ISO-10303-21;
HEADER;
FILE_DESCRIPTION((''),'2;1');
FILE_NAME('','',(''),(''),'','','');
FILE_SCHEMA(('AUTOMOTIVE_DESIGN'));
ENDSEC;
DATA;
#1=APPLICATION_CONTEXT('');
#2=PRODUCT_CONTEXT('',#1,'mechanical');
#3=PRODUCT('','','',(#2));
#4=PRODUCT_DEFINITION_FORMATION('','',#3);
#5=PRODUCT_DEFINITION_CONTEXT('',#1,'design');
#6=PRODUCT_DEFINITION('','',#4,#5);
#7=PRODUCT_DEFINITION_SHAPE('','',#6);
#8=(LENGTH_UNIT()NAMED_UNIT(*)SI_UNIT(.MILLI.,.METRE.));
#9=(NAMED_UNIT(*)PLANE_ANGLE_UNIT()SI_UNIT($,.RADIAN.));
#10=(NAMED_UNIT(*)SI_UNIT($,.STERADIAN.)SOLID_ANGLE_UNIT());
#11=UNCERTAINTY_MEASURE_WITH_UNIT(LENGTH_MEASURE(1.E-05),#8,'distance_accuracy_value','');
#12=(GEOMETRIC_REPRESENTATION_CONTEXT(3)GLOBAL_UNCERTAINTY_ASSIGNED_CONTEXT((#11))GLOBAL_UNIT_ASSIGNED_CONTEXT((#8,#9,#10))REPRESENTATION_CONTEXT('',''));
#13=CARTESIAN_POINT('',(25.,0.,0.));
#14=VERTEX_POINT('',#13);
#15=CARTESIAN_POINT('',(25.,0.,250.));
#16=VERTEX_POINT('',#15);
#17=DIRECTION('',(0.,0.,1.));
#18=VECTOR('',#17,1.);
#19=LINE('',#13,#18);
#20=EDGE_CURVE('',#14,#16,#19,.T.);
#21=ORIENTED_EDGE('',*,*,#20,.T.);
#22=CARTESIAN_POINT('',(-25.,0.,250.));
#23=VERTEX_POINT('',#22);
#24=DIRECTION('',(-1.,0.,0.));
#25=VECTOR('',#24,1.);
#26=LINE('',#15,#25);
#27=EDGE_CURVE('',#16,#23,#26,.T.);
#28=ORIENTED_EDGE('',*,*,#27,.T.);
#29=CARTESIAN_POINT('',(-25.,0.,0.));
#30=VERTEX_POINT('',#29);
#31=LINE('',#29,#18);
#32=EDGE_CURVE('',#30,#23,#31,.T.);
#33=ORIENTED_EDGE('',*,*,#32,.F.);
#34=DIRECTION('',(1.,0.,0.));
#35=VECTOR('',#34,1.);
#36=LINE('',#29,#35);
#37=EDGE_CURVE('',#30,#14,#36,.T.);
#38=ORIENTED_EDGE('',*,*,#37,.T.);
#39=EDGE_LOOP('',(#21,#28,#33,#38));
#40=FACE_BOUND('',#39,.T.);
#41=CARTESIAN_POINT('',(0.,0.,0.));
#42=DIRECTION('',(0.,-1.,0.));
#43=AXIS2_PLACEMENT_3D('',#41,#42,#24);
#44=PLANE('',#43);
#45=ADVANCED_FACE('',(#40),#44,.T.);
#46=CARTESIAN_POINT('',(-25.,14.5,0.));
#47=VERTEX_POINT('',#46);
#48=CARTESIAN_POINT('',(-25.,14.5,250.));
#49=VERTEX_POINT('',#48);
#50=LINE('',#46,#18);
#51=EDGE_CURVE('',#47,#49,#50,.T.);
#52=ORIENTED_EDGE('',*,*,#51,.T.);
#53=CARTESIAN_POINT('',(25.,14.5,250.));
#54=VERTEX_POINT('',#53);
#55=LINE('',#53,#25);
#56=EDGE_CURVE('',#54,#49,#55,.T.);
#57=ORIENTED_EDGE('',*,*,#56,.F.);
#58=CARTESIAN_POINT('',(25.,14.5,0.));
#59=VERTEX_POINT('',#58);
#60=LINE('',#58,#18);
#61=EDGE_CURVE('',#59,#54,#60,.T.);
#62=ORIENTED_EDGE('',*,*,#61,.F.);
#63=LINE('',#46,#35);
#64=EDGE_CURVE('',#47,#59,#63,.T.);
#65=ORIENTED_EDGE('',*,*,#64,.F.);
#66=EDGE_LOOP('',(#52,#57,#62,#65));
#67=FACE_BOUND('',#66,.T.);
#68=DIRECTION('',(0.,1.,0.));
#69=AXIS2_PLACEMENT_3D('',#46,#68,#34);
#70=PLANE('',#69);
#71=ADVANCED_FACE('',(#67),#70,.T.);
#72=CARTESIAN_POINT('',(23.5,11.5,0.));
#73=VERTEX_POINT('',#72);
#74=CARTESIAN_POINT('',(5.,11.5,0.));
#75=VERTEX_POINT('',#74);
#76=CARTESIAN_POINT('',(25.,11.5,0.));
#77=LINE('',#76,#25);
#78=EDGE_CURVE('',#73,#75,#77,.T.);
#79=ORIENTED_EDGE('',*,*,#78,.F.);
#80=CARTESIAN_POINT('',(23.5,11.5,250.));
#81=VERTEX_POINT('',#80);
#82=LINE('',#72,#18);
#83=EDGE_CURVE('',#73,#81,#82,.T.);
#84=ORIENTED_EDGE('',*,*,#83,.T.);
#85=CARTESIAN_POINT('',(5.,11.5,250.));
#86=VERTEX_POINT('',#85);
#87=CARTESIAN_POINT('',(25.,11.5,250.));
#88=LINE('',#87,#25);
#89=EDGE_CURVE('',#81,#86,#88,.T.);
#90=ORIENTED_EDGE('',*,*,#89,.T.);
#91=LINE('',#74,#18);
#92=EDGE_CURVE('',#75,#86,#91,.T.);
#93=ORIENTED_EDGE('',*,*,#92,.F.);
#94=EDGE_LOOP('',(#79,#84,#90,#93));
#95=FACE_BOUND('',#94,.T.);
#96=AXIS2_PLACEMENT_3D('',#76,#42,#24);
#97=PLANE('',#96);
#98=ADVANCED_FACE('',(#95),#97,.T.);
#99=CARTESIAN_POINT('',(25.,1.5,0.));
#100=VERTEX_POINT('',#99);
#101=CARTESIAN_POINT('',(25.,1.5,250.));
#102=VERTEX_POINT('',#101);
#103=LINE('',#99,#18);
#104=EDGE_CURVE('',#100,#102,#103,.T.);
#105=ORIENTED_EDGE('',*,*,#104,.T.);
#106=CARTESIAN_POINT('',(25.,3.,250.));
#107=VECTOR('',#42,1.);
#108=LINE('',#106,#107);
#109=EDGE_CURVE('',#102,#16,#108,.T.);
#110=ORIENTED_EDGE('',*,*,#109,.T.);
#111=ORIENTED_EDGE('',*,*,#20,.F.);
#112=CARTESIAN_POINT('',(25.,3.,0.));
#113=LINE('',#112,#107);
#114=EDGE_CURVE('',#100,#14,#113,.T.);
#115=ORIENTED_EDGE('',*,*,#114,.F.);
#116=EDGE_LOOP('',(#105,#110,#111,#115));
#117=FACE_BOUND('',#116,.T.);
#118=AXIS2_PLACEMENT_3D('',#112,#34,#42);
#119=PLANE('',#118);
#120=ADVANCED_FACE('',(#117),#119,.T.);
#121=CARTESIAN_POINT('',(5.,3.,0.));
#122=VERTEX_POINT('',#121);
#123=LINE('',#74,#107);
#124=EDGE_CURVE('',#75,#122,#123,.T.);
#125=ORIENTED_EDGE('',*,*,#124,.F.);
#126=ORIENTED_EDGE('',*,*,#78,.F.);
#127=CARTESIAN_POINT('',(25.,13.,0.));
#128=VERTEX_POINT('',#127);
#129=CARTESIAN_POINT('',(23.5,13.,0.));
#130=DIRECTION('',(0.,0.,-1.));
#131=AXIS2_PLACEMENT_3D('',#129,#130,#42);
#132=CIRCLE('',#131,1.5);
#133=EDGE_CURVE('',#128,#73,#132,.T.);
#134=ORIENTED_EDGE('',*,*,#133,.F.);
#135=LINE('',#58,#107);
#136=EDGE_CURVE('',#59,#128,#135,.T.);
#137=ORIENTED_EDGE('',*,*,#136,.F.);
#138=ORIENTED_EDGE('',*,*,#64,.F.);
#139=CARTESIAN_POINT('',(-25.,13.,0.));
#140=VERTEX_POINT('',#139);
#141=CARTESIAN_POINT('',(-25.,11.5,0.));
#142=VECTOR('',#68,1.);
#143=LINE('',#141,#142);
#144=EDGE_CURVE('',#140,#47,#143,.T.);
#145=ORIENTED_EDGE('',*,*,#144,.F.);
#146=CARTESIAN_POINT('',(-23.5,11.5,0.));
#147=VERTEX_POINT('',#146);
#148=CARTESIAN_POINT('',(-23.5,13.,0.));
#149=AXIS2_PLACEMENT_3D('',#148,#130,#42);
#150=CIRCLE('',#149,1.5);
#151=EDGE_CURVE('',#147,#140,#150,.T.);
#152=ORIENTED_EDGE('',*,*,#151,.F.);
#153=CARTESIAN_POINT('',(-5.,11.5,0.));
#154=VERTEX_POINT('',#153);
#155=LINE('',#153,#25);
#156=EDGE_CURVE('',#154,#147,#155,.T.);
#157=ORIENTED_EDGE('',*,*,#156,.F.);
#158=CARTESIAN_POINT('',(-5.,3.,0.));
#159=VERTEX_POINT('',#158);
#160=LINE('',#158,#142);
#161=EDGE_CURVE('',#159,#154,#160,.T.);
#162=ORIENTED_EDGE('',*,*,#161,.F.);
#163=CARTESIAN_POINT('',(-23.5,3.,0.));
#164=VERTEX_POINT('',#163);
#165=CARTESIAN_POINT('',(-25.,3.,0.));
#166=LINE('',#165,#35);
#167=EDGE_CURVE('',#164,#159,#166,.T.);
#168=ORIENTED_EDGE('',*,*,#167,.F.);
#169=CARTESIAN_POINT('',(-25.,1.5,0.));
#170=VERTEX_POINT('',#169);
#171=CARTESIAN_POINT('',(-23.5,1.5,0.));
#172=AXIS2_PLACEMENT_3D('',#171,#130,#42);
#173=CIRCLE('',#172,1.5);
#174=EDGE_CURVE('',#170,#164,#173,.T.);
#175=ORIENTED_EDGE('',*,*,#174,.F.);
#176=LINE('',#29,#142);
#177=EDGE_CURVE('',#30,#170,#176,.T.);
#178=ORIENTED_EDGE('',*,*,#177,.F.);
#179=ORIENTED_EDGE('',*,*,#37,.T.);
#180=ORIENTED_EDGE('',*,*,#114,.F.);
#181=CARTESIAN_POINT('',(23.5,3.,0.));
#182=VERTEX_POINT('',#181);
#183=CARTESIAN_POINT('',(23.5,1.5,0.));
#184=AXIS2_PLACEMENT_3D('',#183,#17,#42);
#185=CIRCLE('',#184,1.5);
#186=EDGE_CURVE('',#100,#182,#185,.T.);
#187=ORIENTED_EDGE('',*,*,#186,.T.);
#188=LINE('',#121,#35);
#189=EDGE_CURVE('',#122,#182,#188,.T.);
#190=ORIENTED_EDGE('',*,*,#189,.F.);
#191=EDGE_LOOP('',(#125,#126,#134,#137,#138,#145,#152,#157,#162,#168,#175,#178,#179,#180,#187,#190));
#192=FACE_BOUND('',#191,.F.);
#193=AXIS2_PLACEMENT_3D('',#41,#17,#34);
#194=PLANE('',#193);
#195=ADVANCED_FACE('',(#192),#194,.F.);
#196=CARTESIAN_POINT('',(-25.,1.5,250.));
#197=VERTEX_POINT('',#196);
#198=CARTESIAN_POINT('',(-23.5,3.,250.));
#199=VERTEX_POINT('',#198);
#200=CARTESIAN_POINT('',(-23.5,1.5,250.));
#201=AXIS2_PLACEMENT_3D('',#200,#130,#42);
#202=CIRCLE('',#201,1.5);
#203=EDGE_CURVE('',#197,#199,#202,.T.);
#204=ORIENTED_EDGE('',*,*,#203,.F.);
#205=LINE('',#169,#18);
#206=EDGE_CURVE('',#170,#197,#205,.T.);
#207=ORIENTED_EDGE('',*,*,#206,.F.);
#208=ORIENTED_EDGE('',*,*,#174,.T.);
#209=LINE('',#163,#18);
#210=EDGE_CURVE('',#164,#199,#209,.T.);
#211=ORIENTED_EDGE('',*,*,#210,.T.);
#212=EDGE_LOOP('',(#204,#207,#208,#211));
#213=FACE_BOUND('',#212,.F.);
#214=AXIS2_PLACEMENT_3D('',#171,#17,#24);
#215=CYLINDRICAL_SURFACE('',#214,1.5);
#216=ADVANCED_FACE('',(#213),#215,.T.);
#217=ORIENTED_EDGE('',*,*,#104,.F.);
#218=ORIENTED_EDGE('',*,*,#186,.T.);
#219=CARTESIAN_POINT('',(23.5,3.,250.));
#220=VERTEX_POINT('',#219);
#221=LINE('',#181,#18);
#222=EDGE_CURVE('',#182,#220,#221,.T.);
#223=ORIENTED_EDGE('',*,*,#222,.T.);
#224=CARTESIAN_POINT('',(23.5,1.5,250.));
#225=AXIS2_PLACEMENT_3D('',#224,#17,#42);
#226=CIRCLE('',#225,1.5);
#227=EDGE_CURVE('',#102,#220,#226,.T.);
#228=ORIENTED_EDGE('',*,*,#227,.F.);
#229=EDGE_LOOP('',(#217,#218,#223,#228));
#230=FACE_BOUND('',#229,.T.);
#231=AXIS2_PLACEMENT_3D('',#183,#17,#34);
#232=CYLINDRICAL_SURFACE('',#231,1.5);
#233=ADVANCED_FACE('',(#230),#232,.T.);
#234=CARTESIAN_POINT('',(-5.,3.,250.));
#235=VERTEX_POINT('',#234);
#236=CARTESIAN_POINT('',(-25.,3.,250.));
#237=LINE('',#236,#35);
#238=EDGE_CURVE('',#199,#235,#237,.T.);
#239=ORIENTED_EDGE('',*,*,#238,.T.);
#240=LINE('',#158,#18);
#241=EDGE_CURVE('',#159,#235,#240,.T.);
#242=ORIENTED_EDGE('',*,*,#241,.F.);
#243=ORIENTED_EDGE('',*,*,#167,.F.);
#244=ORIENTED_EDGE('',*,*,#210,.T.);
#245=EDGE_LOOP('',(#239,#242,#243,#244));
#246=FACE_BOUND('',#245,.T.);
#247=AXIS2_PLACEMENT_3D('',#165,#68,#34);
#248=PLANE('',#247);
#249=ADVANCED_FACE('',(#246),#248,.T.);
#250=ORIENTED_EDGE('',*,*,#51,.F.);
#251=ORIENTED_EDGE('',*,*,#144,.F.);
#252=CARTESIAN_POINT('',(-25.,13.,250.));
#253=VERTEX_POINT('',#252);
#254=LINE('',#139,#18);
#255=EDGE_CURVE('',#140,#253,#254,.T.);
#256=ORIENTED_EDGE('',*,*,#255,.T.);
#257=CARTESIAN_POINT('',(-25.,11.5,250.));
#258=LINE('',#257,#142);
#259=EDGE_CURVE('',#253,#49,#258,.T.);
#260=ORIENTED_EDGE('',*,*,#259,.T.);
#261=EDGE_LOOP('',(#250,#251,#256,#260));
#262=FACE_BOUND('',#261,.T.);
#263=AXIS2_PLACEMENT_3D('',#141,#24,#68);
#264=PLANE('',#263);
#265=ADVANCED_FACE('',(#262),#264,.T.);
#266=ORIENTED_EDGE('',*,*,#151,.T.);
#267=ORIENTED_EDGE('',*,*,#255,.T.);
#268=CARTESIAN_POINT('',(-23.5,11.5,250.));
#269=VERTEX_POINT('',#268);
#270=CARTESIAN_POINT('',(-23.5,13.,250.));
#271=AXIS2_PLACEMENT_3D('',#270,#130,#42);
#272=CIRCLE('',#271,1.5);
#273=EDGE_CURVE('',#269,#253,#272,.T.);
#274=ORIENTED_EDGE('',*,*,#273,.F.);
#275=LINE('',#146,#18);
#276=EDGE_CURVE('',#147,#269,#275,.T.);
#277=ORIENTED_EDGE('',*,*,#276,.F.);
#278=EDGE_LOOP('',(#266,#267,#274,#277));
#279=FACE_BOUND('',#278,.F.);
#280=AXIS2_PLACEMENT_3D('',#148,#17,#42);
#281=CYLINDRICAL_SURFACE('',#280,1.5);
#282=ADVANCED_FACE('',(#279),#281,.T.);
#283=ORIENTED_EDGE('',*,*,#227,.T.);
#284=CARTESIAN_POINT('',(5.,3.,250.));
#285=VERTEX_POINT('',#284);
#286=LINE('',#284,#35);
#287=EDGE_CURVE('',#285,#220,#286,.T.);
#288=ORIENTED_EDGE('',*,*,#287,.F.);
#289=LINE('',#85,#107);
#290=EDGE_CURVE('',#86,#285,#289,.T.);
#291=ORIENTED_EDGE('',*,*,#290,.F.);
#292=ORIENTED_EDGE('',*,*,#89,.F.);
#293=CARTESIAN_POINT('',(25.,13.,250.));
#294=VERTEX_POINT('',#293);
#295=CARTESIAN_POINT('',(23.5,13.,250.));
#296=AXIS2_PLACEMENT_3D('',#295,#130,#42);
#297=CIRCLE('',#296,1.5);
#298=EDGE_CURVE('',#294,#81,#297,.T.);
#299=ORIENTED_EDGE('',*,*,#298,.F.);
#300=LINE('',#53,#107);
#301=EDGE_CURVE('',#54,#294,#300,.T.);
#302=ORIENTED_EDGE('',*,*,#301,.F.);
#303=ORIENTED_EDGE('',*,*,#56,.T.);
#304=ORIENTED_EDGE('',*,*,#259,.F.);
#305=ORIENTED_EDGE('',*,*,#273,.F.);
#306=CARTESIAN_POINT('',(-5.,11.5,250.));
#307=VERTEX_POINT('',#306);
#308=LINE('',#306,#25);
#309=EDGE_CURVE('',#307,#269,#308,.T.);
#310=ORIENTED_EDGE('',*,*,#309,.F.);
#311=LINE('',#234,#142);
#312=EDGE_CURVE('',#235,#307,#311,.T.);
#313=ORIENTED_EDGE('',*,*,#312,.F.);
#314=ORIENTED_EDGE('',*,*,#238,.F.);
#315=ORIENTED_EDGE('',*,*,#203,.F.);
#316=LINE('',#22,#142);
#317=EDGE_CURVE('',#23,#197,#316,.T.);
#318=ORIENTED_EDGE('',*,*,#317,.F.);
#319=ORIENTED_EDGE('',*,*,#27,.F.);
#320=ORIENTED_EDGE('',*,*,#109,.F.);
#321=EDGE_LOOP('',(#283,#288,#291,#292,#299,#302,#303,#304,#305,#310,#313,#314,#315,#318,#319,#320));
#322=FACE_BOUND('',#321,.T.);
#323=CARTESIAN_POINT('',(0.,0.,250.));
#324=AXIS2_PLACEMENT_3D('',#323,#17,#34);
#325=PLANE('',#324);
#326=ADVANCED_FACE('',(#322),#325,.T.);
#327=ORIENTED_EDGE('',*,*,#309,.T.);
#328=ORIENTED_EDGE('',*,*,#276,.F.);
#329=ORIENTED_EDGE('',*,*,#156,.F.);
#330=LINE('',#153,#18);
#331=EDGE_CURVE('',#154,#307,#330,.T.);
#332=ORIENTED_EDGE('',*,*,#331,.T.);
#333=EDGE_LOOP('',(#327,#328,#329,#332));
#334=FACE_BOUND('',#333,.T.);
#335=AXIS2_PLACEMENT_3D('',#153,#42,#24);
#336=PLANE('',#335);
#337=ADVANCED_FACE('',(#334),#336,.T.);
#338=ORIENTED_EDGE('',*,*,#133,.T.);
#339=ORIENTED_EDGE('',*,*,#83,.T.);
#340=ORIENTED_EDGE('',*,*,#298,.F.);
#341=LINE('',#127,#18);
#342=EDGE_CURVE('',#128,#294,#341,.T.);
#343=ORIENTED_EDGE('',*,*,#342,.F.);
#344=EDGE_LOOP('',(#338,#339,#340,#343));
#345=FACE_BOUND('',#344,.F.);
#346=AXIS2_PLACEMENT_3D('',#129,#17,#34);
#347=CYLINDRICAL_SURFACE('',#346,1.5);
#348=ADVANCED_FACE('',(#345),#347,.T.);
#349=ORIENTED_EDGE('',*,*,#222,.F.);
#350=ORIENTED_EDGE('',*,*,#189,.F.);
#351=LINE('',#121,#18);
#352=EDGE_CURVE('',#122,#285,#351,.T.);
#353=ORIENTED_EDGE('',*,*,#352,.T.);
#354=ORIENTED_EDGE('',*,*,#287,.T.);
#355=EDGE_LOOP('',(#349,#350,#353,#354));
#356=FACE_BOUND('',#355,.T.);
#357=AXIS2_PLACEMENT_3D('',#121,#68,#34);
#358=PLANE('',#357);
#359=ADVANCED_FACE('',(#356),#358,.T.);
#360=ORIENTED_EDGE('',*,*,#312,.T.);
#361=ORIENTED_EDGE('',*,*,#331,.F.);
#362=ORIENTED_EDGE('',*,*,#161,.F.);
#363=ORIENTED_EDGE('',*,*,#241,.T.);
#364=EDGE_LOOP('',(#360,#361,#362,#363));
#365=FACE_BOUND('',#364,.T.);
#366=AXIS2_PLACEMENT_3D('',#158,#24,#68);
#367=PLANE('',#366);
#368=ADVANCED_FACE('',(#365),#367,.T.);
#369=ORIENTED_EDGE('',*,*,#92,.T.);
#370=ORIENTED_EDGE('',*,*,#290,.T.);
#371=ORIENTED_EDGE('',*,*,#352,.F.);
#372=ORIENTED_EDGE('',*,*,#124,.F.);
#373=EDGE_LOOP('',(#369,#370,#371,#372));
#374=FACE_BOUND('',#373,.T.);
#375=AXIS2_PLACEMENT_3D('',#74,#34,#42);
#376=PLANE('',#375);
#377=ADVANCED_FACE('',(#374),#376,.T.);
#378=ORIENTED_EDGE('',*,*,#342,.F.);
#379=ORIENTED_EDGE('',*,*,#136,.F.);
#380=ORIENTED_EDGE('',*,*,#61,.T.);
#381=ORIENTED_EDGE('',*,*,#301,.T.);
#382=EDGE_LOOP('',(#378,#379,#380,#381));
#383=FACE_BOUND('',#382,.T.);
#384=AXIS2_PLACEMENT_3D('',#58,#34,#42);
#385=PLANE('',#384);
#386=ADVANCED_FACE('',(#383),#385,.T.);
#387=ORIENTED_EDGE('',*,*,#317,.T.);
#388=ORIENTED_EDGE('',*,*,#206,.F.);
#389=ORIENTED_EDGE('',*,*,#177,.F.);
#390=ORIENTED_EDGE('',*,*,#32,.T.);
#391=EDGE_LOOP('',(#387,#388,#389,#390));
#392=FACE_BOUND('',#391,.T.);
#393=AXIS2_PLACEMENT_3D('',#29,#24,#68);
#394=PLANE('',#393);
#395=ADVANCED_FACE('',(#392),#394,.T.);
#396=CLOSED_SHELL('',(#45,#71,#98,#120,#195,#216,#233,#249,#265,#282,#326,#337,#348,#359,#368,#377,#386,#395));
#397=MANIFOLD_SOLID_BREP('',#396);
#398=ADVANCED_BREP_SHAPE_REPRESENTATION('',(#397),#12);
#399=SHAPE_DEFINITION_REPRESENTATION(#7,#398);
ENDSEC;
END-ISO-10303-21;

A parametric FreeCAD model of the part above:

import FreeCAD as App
import Part
import Sketcher
from FreeCAD import Vector


def edges_at(feature, points):
    """Names of the edges that pass closest to the given points."""
    edges = feature.Shape.Edges
    near = lambda p: min(range(len(edges)), key=lambda i: edges[i].distToShape(Part.Vertex(*p))[0])
    return sorted({f"Edge{near(p) + 1}" for p in points})

doc = App.newDocument("Part")
body = doc.addObject("PartDesign::Body", "Body")

# Sketch on XY plane
sketch1 = doc.addObject("Sketcher::SketchObject", "Sketch")
body.addObject(sketch1)
sketch1.AttachmentSupport = (doc.XY_Plane, [""])
sketch1.MapMode = "FlatFace"
sketch1.addGeometry(Part.LineSegment(Vector(-25, 0, 0), Vector(25, 0, 0)), False)
sketch1.addGeometry(Part.LineSegment(Vector(25, 0, 0), Vector(25, 3, 0)), False)
sketch1.addGeometry(Part.LineSegment(Vector(25, 3, 0), Vector(5, 3, 0)), False)
sketch1.addGeometry(Part.LineSegment(Vector(5, 3, 0), Vector(5, 11.5, 0)), False)
sketch1.addGeometry(Part.LineSegment(Vector(5, 11.5, 0), Vector(25, 11.5, 0)), False)
sketch1.addGeometry(Part.LineSegment(Vector(25, 11.5, 0), Vector(25, 14.5, 0)), False)
sketch1.addGeometry(Part.LineSegment(Vector(25, 14.5, 0), Vector(-25, 14.5, 0)), False)
sketch1.addGeometry(Part.LineSegment(Vector(-25, 14.5, 0), Vector(-25, 11.5, 0)), False)
sketch1.addGeometry(Part.LineSegment(Vector(-25, 11.5, 0), Vector(-5, 11.5, 0)), False)
sketch1.addGeometry(Part.LineSegment(Vector(-5, 11.5, 0), Vector(-5, 3, 0)), False)
sketch1.addGeometry(Part.LineSegment(Vector(-5, 3, 0), Vector(-25, 3, 0)), False)
sketch1.addGeometry(Part.LineSegment(Vector(-25, 3, 0), Vector(-25, 0, 0)), False)
sketch1.addConstraint(Sketcher.Constraint("Coincident", 0, 2, 1, 1))
sketch1.addConstraint(Sketcher.Constraint("Coincident", 1, 2, 2, 1))
sketch1.addConstraint(Sketcher.Constraint("Coincident", 2, 2, 3, 1))
sketch1.addConstraint(Sketcher.Constraint("Coincident", 3, 2, 4, 1))
sketch1.addConstraint(Sketcher.Constraint("Coincident", 4, 2, 5, 1))
sketch1.addConstraint(Sketcher.Constraint("Coincident", 5, 2, 6, 1))
sketch1.addConstraint(Sketcher.Constraint("Coincident", 6, 2, 7, 1))
sketch1.addConstraint(Sketcher.Constraint("Coincident", 7, 2, 8, 1))
sketch1.addConstraint(Sketcher.Constraint("Coincident", 8, 2, 9, 1))
sketch1.addConstraint(Sketcher.Constraint("Coincident", 9, 2, 10, 1))
sketch1.addConstraint(Sketcher.Constraint("Coincident", 10, 2, 11, 1))
sketch1.addConstraint(Sketcher.Constraint("Coincident", 11, 2, 0, 1))
sketch1.addConstraint(Sketcher.Constraint("Horizontal", 0))
sketch1.addConstraint(Sketcher.Constraint("Vertical", 1))
sketch1.addConstraint(Sketcher.Constraint("Horizontal", 2))
sketch1.addConstraint(Sketcher.Constraint("Vertical", 3))
sketch1.addConstraint(Sketcher.Constraint("Horizontal", 4))
sketch1.addConstraint(Sketcher.Constraint("Vertical", 5))
sketch1.addConstraint(Sketcher.Constraint("Horizontal", 6))
sketch1.addConstraint(Sketcher.Constraint("Vertical", 7))
sketch1.addConstraint(Sketcher.Constraint("Horizontal", 8))
sketch1.addConstraint(Sketcher.Constraint("Vertical", 9))
sketch1.addConstraint(Sketcher.Constraint("Horizontal", 10))
sketch1.addConstraint(Sketcher.Constraint("Vertical", 11))
sketch1.addConstraint(Sketcher.Constraint("Symmetric", 0, 2, 11, 2, -1, 1))
sketch1.addConstraint(Sketcher.Constraint("Symmetric", 4, 2, 7, 2, -2))
sketch1.addConstraint(Sketcher.Constraint("Symmetric", 2, 2, 9, 2, -2))
sketch1.addConstraint(Sketcher.Constraint("Vertical", 1, 2, 4, 2))
sketch1.addConstraint(Sketcher.Constraint("Equal", 1, 5))
sketch1.addConstraint(Sketcher.Constraint("DistanceX", 2, 2, 2, 1, 20.0))
sketch1.addConstraint(Sketcher.Constraint("DistanceY", 1, 1, 1, 2, 3.0))
sketch1.addConstraint(Sketcher.Constraint("DistanceY", 3, 1, 3, 2, 8.5))
sketch1.addConstraint(Sketcher.Constraint("DistanceX", -1, 1, 0, 2, 25.0))
pad1 = doc.addObject("PartDesign::Pad", "Pad")
body.addObject(pad1)
pad1.Profile = sketch1
pad1.Length = 250
doc.recompute()

fillet = doc.addObject("PartDesign::Fillet", "Fillet")
body.addObject(fillet)
fillet.Base = (pad1, edges_at(pad1, [
    (-25, 11.5, 125),
    (-25, 3, 125),
    (25, 3, 125),
    (25, 11.5, 125),
]))
fillet.Radius = 1.5

doc.recompute()
